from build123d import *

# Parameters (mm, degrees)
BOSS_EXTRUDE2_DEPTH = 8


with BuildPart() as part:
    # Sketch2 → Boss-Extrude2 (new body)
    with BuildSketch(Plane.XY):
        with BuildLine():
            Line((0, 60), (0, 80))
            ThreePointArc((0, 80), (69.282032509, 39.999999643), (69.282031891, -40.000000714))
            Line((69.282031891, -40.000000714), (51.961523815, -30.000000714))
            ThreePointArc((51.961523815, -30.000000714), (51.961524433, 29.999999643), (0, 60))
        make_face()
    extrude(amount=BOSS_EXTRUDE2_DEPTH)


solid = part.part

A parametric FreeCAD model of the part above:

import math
import FreeCAD as App
import Part
import Sketcher
from FreeCAD import Vector
Q = App.Units.Quantity

doc = App.newDocument("Part")
body = doc.addObject("PartDesign::Body", "Body")

sketch1 = body.newObject("Sketcher::SketchObject", "Sketch")
sketch1.AttachmentSupport = (doc.getObject("XY_Plane"), [""])
sketch1.MapMode = "FlatFace"
sketch1.addGeometry(Part.LineSegment(Vector(0, 80, 0), Vector(0, 60, 0)), False)
sketch1.addGeometry(Part.ArcOfCircle(Part.Circle(Vector(0, 0, 0), Vector(0, 0, 1), 60), math.radians(-30), math.radians(90)), False)
sketch1.addGeometry(Part.LineSegment(Vector(52, -30, 0), Vector(69, -40, 0)), False)
sketch1.addGeometry(Part.ArcOfCircle(Part.Circle(Vector(0, 0, 0), Vector(0, 0, 1), 80), math.radians(-30), math.radians(90)), False)
sketch1.addConstraint(Sketcher.Constraint("Coincident", 0, 2, 1, 2))
sketch1.addConstraint(Sketcher.Constraint("Coincident", 1, 1, 2, 1))
sketch1.addConstraint(Sketcher.Constraint("Coincident", 2, 2, 3, 1))
sketch1.addConstraint(Sketcher.Constraint("Coincident", 3, 2, 0, 1))
sketch1.addConstraint(Sketcher.Constraint("Vertical", 0))
sketch1.addConstraint(Sketcher.Constraint("Coincident", 1, 3, -1, 1))
sketch1.addConstraint(Sketcher.Constraint("Coincident", 3, 3, -1, 1))
sketch1.addConstraint(Sketcher.Constraint("PointOnObject", 0, 2, -2))
sketch1.addConstraint(Sketcher.Constraint("Radius", 1, 60.0))
sketch1.addConstraint(Sketcher.Constraint("Radius", 3, 80.0))
sketch1.addConstraint(Sketcher.Constraint("Angle", 2, Q("-30 deg")))
sketch1.addConstraint(Sketcher.Constraint("DistanceY", 1, 1, -1, 1, 30.000001))
pad1 = body.newObject("PartDesign::Pad", "Pad")
pad1.Profile = sketch1
pad1.Length = 8

doc.recompute()
